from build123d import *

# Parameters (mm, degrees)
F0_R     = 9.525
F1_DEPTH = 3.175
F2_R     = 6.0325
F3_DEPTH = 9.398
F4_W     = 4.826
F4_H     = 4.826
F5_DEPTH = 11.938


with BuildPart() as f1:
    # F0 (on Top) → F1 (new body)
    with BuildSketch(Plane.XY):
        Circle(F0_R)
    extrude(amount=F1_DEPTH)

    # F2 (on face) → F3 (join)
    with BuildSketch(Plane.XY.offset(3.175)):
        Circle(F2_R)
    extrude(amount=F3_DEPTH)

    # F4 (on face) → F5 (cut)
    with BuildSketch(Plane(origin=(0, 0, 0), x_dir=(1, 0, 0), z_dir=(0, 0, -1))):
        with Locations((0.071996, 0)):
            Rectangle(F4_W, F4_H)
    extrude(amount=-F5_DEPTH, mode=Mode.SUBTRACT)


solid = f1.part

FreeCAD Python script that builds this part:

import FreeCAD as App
import Part
import Sketcher
Q = App.Units.Quantity

doc = App.newDocument("Part")
params = doc.addObject("Spreadsheet::Sheet", "Params")
for row, (alias, value) in enumerate([
    ("sketch1_diameter", "0.75 in"),
    ("pad1_length", "0.125 in"),
    ("sketch2_diameter", "0.475 in"),
    ("pad2_length", "0.37 in"),
    ("sketch3_width", "0.19 in"),
    ("pocket1_length", "0.47 in"),
], start=1):
    params.set(f"A{row}", alias)
    params.set(f"B{row}", "=" + value)
    params.setAlias(f"B{row}", alias)

body = doc.addObject("PartDesign::Body", "Body")

sketch1 = body.newObject("Sketcher::SketchObject", "Sketch")
sketch1.AttachmentSupport = (doc.getObject("XY_Plane"), [""])
sketch1.MapMode = "FlatFace"
sketch1.addGeometry(Part.Circle(App.Vector(0, 0, 0), App.Vector(0, 0, 1), 9.525), False)
sketch1.addConstraint([
    Sketcher.Constraint("Coincident", 0, 3, -1, 1),
    Sketcher.Constraint("Diameter", 0, Q("0.75 in")),
])
sketch1.setExpression("Constraints[1]", "Params.sketch1_diameter")
pad1 = body.newObject("PartDesign::Pad", "Pad")
pad1.Profile = sketch1
pad1.setExpression("Length", "Params.pad1_length")

sketch2 = body.newObject("Sketcher::SketchObject", "Sketch001")
sketch2.AttachmentSupport = (doc.getObject("XY_Plane"), [""])
sketch2.MapMode = "FlatFace"
sketch2.AttachmentOffset = App.Placement(App.Vector(0, 0, 0.125 * 25.4), App.Rotation())
sketch2.addGeometry(Part.Circle(App.Vector(0, 0, 0), App.Vector(0, 0, 1), 6.0325), False)
sketch2.addConstraint([
    Sketcher.Constraint("Coincident", 0, 3, -1, 1),
    Sketcher.Constraint("Diameter", 0, Q("0.475 in")),
])
sketch2.setExpression("Constraints[1]", "Params.sketch2_diameter")
pad2 = body.newObject("PartDesign::Pad", "Pad001")
pad2.Profile = sketch2
pad2.setExpression("Length", "Params.pad2_length")

sketch3 = body.newObject("Sketcher::SketchObject", "Sketch002")
sketch3.AttachmentSupport = (doc.getObject("XY_Plane"), [""])
sketch3.MapMode = "FlatFace"
sketch3.addGeometry([
    Part.LineSegment(App.Vector(-2.341004, -2.413, 0), App.Vector(-2.341004, 2.413, 0)),
    Part.LineSegment(App.Vector(-2.341004, 2.413, 0), App.Vector(2.484996, 2.413, 0)),
    Part.LineSegment(App.Vector(2.484996, 2.413, 0), App.Vector(2.484996, -2.413, 0)),
    Part.LineSegment(App.Vector(2.484996, -2.413, 0), App.Vector(-2.341004, -2.413, 0)),
], False)
sketch3.addConstraint([
    Sketcher.Constraint("Coincident", 0, 2, 1, 1),
    Sketcher.Constraint("Coincident", 1, 2, 2, 1),
    Sketcher.Constraint("Coincident", 2, 2, 3, 1),
    Sketcher.Constraint("Coincident", 3, 2, 0, 1),
    Sketcher.Constraint("Vertical", 0),
    Sketcher.Constraint("Horizontal", 1),
    Sketcher.Constraint("Vertical", 2),
    Sketcher.Constraint("Horizontal", 3),
    Sketcher.Constraint("Equal", 3, 0),
    Sketcher.Constraint("DistanceX", 1, 1, 1, 2, Q("0.19 in")),
    Sketcher.Constraint("DistanceY", -1, 1, 0, 2, Q("0.095 in")),
    Sketcher.Constraint("DistanceX", 0, 2, -1, 1, Q("2.341004 mm")),
])
sketch3.setExpression("Constraints[9]", "Params.sketch3_width")
pocket1 = body.newObject("PartDesign::Pocket", "Pocket")
pocket1.Profile = sketch3
pocket1.setExpression("Length", "Params.pocket1_length")
pocket1.Reversed = True

doc.recompute()
